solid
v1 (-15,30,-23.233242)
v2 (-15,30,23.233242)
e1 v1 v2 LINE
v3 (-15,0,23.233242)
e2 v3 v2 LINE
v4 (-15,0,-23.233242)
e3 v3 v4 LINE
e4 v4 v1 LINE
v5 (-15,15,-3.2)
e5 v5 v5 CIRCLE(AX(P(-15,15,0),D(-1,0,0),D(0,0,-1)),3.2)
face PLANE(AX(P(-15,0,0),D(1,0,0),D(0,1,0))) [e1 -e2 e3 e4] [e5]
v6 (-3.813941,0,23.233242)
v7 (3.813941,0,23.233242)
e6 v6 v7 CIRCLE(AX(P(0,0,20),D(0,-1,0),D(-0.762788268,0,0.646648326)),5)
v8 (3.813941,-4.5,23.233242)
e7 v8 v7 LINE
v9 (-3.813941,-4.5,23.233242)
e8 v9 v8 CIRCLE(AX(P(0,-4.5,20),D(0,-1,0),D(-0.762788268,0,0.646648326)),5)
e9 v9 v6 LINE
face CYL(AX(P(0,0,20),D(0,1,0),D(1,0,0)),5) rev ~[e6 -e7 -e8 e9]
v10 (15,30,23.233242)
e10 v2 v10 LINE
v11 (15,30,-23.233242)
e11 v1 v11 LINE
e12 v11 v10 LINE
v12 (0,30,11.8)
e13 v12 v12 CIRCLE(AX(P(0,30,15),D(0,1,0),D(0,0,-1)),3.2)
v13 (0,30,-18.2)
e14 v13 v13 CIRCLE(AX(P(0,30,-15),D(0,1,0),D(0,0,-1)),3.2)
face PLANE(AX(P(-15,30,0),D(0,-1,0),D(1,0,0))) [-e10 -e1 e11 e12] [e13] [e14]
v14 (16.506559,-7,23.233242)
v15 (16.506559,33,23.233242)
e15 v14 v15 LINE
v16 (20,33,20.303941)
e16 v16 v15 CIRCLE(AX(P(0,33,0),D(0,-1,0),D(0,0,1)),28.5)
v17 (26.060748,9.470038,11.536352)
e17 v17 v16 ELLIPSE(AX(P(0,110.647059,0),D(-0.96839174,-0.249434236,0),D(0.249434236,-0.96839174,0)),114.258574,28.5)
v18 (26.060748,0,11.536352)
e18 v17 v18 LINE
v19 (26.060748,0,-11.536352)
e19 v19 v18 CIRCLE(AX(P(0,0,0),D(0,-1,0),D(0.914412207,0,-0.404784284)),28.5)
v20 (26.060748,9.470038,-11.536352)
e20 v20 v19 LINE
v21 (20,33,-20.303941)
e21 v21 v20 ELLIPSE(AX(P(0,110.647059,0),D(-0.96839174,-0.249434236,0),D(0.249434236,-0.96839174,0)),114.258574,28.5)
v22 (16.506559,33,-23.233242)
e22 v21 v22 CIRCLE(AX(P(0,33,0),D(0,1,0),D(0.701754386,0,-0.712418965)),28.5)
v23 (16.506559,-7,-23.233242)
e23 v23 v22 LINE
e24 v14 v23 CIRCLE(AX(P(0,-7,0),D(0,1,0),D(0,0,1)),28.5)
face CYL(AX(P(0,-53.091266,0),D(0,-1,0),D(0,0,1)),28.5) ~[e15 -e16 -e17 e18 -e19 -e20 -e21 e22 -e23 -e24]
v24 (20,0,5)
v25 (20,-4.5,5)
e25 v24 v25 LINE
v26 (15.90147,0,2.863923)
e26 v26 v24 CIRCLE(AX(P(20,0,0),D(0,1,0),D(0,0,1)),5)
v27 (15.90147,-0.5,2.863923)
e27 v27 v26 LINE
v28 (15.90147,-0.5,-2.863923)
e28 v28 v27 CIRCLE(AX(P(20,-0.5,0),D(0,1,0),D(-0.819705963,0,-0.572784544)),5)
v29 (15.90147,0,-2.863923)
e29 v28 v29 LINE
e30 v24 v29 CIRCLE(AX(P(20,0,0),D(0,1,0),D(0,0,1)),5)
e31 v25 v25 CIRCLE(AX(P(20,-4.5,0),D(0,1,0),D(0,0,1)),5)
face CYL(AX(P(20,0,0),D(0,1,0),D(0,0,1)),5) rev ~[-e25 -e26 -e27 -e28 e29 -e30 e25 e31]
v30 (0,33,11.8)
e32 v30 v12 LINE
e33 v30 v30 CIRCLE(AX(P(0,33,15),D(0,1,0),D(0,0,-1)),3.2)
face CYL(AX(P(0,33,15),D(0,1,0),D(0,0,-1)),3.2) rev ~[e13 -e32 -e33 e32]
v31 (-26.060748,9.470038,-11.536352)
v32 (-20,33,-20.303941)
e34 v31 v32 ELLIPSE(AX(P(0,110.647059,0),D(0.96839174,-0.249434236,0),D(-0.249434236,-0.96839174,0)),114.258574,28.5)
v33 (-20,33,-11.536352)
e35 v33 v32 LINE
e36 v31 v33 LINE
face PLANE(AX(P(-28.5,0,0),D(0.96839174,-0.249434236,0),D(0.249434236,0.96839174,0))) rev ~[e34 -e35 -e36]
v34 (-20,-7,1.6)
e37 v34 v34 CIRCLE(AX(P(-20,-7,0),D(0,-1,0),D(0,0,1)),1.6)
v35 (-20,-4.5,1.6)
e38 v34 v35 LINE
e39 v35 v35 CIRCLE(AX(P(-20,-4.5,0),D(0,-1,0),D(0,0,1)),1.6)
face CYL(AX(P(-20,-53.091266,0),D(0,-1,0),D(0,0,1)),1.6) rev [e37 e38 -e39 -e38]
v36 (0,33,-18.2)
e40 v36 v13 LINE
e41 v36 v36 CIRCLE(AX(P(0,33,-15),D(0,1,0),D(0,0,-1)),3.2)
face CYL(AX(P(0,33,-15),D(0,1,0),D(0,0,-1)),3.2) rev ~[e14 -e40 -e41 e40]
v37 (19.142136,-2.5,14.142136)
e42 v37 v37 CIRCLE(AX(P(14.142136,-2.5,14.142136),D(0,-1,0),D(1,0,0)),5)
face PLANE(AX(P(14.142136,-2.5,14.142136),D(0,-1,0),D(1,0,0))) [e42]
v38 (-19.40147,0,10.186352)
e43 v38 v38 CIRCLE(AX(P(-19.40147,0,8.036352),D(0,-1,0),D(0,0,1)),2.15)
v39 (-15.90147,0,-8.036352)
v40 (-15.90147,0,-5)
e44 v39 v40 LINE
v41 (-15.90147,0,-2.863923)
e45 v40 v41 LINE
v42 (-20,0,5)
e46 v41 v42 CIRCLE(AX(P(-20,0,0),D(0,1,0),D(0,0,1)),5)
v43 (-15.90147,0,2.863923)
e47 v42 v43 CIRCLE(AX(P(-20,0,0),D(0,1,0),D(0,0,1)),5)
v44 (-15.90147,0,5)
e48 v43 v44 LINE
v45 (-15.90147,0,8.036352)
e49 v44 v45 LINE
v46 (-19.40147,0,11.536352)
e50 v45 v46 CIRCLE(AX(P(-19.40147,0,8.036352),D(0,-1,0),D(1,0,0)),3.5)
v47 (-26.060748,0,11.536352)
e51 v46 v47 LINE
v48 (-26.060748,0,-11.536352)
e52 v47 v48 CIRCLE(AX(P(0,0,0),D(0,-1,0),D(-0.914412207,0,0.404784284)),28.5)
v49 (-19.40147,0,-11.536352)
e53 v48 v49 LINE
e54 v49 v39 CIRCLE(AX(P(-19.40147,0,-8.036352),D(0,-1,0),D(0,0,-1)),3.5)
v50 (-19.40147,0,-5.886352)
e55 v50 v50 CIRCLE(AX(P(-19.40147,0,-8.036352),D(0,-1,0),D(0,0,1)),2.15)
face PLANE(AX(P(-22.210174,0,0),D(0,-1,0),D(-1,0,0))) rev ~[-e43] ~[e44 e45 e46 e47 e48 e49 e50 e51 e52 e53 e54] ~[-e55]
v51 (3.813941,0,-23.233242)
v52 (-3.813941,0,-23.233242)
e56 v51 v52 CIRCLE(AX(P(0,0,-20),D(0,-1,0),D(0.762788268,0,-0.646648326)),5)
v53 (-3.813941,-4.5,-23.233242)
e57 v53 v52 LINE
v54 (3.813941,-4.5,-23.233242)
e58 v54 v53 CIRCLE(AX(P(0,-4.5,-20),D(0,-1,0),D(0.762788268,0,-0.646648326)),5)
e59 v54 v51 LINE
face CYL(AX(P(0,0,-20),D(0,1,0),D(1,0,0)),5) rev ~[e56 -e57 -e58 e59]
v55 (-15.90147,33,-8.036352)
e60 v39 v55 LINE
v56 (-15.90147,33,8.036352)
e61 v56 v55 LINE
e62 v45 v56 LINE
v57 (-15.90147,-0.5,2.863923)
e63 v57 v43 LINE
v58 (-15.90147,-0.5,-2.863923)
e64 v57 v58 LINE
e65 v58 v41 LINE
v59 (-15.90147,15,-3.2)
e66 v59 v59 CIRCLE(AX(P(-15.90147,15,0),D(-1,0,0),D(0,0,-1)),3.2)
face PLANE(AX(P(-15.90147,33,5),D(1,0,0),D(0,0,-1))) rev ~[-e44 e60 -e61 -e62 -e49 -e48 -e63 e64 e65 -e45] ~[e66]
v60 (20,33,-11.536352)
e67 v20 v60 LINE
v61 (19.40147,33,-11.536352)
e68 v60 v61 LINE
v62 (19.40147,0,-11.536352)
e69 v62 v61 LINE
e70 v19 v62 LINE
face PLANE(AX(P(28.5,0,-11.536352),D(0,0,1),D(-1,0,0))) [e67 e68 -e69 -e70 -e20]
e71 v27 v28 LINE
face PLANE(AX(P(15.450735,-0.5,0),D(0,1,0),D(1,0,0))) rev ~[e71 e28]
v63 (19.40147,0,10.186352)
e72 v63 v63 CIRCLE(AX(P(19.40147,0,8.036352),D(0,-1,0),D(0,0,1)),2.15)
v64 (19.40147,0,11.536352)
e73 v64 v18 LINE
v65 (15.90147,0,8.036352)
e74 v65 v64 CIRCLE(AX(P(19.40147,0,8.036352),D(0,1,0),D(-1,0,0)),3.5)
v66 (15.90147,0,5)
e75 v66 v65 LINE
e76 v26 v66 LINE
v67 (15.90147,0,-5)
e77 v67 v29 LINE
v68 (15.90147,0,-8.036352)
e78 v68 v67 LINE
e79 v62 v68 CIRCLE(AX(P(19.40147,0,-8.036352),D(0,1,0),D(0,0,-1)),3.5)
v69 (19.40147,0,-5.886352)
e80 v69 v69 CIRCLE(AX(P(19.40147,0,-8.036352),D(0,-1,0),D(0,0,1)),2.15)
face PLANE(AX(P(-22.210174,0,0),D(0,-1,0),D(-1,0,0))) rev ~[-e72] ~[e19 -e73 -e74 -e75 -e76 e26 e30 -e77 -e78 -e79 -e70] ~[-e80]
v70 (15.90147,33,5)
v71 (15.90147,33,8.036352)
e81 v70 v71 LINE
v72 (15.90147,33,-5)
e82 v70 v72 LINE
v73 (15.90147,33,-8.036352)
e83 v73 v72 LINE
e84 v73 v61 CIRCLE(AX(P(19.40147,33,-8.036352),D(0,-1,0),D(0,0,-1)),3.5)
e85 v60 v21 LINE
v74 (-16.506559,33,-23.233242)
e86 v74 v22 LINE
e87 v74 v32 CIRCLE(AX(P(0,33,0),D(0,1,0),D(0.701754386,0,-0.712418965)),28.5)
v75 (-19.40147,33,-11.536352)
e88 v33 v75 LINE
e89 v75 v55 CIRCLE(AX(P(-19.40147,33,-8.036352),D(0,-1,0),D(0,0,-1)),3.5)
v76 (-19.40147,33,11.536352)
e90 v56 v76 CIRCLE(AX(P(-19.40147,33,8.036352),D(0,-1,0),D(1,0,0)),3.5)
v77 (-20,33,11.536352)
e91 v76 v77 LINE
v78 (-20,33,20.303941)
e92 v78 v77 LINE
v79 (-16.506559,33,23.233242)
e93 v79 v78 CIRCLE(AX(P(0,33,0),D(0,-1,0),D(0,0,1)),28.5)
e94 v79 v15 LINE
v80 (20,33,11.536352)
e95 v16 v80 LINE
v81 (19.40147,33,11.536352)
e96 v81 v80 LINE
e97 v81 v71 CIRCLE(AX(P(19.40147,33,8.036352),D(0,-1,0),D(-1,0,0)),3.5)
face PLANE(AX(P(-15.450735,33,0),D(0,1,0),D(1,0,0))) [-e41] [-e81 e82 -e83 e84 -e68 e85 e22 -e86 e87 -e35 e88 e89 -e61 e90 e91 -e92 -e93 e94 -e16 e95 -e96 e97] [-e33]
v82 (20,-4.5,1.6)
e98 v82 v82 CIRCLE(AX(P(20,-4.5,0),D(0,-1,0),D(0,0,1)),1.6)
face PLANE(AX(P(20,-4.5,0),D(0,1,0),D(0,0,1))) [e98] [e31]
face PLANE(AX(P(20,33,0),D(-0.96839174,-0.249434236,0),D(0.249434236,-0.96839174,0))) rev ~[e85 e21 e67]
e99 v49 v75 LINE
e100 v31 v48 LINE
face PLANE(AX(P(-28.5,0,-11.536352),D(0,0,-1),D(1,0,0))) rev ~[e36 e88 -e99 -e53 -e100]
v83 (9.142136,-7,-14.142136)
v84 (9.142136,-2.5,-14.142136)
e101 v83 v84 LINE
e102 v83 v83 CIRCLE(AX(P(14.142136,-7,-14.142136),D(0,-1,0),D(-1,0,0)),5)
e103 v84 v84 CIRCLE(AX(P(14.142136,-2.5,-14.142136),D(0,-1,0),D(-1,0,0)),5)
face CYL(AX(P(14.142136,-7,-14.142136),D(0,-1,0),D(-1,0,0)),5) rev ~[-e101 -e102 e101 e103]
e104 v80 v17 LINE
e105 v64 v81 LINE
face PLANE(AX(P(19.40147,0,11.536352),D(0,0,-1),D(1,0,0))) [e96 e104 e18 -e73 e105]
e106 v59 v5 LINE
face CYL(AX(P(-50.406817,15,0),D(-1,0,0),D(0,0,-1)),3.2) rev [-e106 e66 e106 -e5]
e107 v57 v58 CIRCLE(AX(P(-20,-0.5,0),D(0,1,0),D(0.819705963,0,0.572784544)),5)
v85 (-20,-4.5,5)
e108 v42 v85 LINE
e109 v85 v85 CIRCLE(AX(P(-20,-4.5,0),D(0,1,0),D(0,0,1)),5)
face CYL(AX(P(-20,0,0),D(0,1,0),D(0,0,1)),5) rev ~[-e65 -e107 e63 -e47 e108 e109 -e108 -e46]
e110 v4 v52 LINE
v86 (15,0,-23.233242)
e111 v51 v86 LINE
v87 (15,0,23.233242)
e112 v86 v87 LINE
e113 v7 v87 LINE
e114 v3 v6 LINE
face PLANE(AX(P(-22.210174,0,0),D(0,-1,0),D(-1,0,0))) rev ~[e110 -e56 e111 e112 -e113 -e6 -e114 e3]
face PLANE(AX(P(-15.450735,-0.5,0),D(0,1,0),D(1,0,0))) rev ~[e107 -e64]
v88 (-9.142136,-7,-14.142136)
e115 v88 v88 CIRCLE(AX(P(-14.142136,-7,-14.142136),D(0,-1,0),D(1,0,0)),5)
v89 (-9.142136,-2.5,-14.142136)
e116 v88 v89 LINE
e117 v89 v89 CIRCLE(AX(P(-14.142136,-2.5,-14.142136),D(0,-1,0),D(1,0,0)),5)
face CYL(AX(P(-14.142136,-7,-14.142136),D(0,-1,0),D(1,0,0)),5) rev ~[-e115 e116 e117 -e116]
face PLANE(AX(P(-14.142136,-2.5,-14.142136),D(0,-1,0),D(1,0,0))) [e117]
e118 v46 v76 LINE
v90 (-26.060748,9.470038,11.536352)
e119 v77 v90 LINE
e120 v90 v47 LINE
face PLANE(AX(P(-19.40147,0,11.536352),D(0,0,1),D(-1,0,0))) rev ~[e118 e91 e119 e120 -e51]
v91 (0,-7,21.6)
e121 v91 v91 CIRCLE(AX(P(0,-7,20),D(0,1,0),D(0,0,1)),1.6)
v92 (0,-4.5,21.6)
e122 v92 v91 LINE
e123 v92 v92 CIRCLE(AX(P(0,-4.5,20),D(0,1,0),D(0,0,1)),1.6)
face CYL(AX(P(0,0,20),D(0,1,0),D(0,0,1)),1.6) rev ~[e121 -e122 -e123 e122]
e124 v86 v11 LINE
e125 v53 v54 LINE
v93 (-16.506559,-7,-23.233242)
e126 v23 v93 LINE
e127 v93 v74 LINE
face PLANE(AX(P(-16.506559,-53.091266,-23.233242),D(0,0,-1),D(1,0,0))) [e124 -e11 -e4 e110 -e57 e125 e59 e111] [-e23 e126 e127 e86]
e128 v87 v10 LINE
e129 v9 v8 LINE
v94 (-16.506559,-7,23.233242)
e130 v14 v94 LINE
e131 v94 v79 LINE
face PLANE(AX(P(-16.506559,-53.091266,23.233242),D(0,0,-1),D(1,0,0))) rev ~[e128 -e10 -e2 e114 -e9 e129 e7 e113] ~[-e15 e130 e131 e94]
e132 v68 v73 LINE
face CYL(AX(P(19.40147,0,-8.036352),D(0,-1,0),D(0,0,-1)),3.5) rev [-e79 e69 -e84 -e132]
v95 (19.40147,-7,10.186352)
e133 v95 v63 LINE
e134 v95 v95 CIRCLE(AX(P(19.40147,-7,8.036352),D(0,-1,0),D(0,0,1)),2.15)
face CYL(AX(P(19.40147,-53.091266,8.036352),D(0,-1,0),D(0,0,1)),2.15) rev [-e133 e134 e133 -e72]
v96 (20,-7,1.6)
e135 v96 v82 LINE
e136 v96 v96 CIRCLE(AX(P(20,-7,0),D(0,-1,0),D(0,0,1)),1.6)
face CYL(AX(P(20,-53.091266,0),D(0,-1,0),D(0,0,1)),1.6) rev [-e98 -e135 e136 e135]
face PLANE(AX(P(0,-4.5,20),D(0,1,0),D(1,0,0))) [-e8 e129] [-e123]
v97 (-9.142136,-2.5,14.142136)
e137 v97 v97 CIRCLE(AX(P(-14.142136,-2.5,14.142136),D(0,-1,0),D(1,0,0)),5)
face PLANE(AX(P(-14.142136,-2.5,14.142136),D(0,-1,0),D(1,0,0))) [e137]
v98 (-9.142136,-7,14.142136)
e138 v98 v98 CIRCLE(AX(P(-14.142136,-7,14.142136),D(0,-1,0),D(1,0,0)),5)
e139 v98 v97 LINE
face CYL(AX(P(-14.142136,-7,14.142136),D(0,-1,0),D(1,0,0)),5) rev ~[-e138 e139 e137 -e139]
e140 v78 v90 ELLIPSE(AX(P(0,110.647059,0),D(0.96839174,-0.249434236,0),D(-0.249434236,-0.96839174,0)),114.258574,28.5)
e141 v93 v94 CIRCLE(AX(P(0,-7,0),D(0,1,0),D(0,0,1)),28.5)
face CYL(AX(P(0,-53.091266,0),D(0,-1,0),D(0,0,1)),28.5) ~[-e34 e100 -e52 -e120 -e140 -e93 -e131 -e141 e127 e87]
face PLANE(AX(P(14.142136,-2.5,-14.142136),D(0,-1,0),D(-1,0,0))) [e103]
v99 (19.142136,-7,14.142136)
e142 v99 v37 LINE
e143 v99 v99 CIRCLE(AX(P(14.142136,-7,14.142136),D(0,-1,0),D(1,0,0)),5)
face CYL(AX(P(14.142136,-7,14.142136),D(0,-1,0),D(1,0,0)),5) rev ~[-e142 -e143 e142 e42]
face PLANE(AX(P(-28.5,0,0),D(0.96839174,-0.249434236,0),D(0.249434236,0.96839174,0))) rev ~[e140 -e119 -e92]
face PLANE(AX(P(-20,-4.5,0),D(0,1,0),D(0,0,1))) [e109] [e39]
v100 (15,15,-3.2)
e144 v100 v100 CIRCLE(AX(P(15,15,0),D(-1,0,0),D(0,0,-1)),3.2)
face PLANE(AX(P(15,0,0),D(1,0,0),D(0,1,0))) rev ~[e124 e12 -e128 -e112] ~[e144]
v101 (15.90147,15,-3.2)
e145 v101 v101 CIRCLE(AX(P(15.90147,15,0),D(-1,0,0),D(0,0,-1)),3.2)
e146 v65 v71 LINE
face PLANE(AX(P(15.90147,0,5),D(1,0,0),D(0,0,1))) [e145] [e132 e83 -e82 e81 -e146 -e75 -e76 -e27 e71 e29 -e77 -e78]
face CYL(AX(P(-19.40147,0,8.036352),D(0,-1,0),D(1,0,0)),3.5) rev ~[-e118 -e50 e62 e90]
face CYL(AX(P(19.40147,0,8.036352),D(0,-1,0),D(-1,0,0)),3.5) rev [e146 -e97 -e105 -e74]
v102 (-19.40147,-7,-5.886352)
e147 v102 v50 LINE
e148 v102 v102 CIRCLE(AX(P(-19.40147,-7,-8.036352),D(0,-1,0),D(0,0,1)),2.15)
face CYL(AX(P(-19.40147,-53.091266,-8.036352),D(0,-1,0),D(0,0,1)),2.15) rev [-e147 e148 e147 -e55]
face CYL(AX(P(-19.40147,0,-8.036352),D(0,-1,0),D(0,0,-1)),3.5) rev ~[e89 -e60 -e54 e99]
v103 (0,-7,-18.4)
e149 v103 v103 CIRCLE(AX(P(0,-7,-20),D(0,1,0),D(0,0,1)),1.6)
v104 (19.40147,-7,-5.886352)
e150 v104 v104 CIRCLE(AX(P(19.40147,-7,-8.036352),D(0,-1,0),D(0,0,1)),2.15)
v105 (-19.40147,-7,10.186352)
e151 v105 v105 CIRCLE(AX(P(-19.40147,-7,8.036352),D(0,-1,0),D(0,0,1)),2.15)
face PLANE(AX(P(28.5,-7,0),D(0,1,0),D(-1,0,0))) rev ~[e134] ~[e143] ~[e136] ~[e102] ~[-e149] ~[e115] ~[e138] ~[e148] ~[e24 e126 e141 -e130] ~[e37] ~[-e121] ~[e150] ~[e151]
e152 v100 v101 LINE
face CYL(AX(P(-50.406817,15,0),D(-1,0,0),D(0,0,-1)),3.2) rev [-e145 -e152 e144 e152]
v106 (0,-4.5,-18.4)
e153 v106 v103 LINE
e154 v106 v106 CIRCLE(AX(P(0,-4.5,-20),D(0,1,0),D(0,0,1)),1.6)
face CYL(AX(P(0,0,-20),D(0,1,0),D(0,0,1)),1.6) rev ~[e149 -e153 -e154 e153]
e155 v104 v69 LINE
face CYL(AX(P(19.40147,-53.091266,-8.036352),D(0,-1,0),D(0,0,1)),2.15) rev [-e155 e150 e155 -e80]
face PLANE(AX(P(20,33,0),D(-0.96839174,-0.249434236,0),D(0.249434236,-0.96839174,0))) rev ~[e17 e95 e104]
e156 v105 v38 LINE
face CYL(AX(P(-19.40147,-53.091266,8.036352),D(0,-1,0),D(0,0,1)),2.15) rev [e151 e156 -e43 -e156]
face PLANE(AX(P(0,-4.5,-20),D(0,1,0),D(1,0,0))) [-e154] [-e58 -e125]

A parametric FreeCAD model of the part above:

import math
import FreeCAD as App
import Part
import Sketcher


def add_polygon(sketch, points):
    """Adds a closed chain of lines whose ends are joined by coincident constraints."""
    first, n = sketch.GeometryCount, len(points)
    for a, b in zip(points, points[1:] + points[:1]):
        sketch.addGeometry(Part.LineSegment(App.Vector(*a, 0), App.Vector(*b, 0)), False)
    for i in range(n):
        sketch.addConstraint(Sketcher.Constraint("Coincident", first + i, 2, first + (i + 1) % n, 1))

doc = App.newDocument("Part")
body = doc.addObject("PartDesign::Body", "Body")

# Sketch on XY plane
sketch1 = body.newObject("Sketcher::SketchObject", "Sketch")
sketch1.AttachmentSupport = (doc.getObject("XY_Plane"), [""])
sketch1.MapMode = "FlatFace"
add_polygon(sketch1, [(-20, 33), (-28, 0), (-28, -7), (28, -7), (28, 0), (20, 33)])  # lines 0-5
add_polygon(sketch1, [(-15, 0), (-15, 30), (15, 30), (15, 0)])  # lines 6-9
sketch1.addConstraint(Sketcher.Constraint("Vertical", 1))
sketch1.addConstraint(Sketcher.Constraint("Horizontal", 2))
sketch1.addConstraint(Sketcher.Constraint("Vertical", 3))
sketch1.addConstraint(Sketcher.Constraint("Horizontal", 5))
sketch1.addConstraint(Sketcher.Constraint("Vertical", 6))
sketch1.addConstraint(Sketcher.Constraint("Horizontal", 7))
sketch1.addConstraint(Sketcher.Constraint("Vertical", 8))
sketch1.addConstraint(Sketcher.Constraint("Horizontal", 9))
sketch1.addConstraint(Sketcher.Constraint("Symmetric", 0, 2, 3, 2, -1, 1))
sketch1.addConstraint(Sketcher.Constraint("Symmetric", 8, 2, 9, 2, -1, 1))
sketch1.addConstraint(Sketcher.Constraint("PointOnObject", 0, 2, -1))
sketch1.addConstraint(Sketcher.Constraint("Equal", 9, 6))
sketch1.addConstraint(Sketcher.Constraint("Equal", 0, 4))
sketch1.addConstraint(Sketcher.Constraint("DistanceX", 2, 1, 2, 2, 57.0))
sketch1.addConstraint(Sketcher.Constraint("DistanceX", 5, 2, 5, 1, 40.0))
sketch1.addConstraint(Sketcher.Constraint("DistanceX", 7, 1, 7, 2, 30.0))
sketch1.addConstraint(Sketcher.Constraint("DistanceY", 1, 2, 1, 1, 7.0))
sketch1.addConstraint(Sketcher.Constraint("DistanceY", -1, 1, 4, 2, 33.0))
pad1 = body.newObject("PartDesign::Pad", "Pad")
pad1.Profile = sketch1
pad1.Length = 57
pad1.Midplane = True

# Sketch on XZ plane
sketch2 = body.newObject("Sketcher::SketchObject", "Sketch001")
sketch2.AttachmentSupport = (doc.getObject("XZ_Plane"), [""])
sketch2.MapMode = "FlatFace"
sketch2.addGeometry(Part.Circle(App.Vector(-19.4, -8, 0), App.Vector(0, 0, 1), 2.1), False)
sketch2.addGeometry(Part.Circle(App.Vector(-20, 0, 0), App.Vector(0, 0, 1), 1.6), False)
sketch2.addGeometry(Part.Circle(App.Vector(19.4, -8, 0), App.Vector(0, 0, 1), 2.1), False)
sketch2.addGeometry(Part.Circle(App.Vector(20, 0, 0), App.Vector(0, 0, 1), 1.6), False)
sketch2.addGeometry(Part.Circle(App.Vector(19.4, 8, 0), App.Vector(0, 0, 1), 2.1), False)
sketch2.addGeometry(Part.Circle(App.Vector(-19.4, 8, 0), App.Vector(0, 0, 1), 2.1), False)
sketch2.addConstraint(Sketcher.Constraint("Equal", 0, 2))
sketch2.addConstraint(Sketcher.Constraint("Equal", 1, 3))
sketch2.addConstraint(Sketcher.Constraint("Equal", 2, 4))
sketch2.addConstraint(Sketcher.Constraint("Equal", 4, 5))
sketch2.addConstraint(Sketcher.Constraint("Symmetric", 1, 3, 3, 3, -1, 1))
sketch2.addConstraint(Sketcher.Constraint("Symmetric", 0, 3, 4, 3, -1, 1))
sketch2.addConstraint(Sketcher.Constraint("Symmetric", 2, 3, 5, 3, -1, 1))
sketch2.addConstraint(Sketcher.Constraint("Symmetric", 0, 3, 2, 3, -2))
sketch2.addConstraint(Sketcher.Constraint("PointOnObject", 1, 3, -1))
sketch2.addConstraint(Sketcher.Constraint("Diameter", 0, 4.3))
sketch2.addConstraint(Sketcher.Constraint("Diameter", 1, 3.2))
sketch2.addConstraint(Sketcher.Constraint("DistanceX", 1, 3, -1, 1, 20.0))
sketch2.addConstraint(Sketcher.Constraint("DistanceX", 0, 3, -1, 1, 19.40147))
sketch2.addConstraint(Sketcher.Constraint("DistanceY", 0, 3, -1, 1, 8.036352))
pocket1 = body.newObject("PartDesign::Pocket", "Pocket")
pocket1.Profile = sketch2
pocket1.Type = "ThroughAll"
pocket1.Midplane = True

# Sketch on XZ plane
sketch3 = body.newObject("Sketcher::SketchObject", "Sketch002")
sketch3.AttachmentSupport = (doc.getObject("XZ_Plane"), [""])
sketch3.MapMode = "FlatFace"
sketch3.addGeometry(Part.LineSegment(App.Vector(28.5, -11.5, 0), App.Vector(19.4, -11.5, 0)), False)
sketch3.addGeometry(Part.ArcOfCircle(Part.Circle(App.Vector(19.4, -8, 0), App.Vector(0, 0, 1), 3.5), math.radians(-180), math.radians(-90)), False)
sketch3.addGeometry(Part.LineSegment(App.Vector(15.9, -8, 0), App.Vector(15.9, -5, 0)), False)
sketch3.addGeometry(Part.LineSegment(App.Vector(15.9, -5, 0), App.Vector(15, -5, 0)), False)
sketch3.addGeometry(Part.LineSegment(App.Vector(15, -5, 0), App.Vector(15, 5, 0)), False)
sketch3.addGeometry(Part.LineSegment(App.Vector(15, 5, 0), App.Vector(15.9, 5, 0)), False)
sketch3.addGeometry(Part.LineSegment(App.Vector(15.9, 5, 0), App.Vector(15.9, 8, 0)), False)
sketch3.addGeometry(Part.ArcOfCircle(Part.Circle(App.Vector(19.4, 8, 0), App.Vector(0, 0, 1), 3.5), math.radians(90), math.radians(180)), False)
sketch3.addGeometry(Part.LineSegment(App.Vector(19.4, 11.5, 0), App.Vector(28.5, 11.5, 0)), False)
sketch3.addGeometry(Part.LineSegment(App.Vector(28.5, 11.5, 0), App.Vector(28.5, -11.5, 0)), False)
sketch3.addGeometry(Part.LineSegment(App.Vector(-15.9, 8, 0), App.Vector(-15.9, 5, 0)), False)
sketch3.addGeometry(Part.LineSegment(App.Vector(-15.9, 5, 0), App.Vector(-15, 5, 0)), False)
sketch3.addGeometry(Part.LineSegment(App.Vector(-15, 5, 0), App.Vector(-15, -5, 0)), False)
sketch3.addGeometry(Part.LineSegment(App.Vector(-15, -5, 0), App.Vector(-15.9, -5, 0)), False)
sketch3.addGeometry(Part.LineSegment(App.Vector(-15.9, -5, 0), App.Vector(-15.9, -8, 0)), False)
sketch3.addGeometry(Part.ArcOfCircle(Part.Circle(App.Vector(-19.4, -8, 0), App.Vector(0, 0, 1), 3.5), math.radians(-90), math.radians(0)), False)
sketch3.addGeometry(Part.LineSegment(App.Vector(-19.4, -11.5, 0), App.Vector(-28.5, -11.5, 0)), False)
sketch3.addGeometry(Part.LineSegment(App.Vector(-28.5, -11.5, 0), App.Vector(-28.5, 11.5, 0)), False)
sketch3.addGeometry(Part.LineSegment(App.Vector(-28.5, 11.5, 0), App.Vector(-19.4, 11.5, 0)), False)
sketch3.addGeometry(Part.ArcOfCircle(Part.Circle(App.Vector(-19.4, 8, 0), App.Vector(0, 0, 1), 3.5), math.radians(0), math.radians(90)), False)
sketch3.addConstraint(Sketcher.Constraint("Tangent", 0, 2, 1, 2))
sketch3.addConstraint(Sketcher.Constraint("Tangent", 1, 1, 2, 1))
sketch3.addConstraint(Sketcher.Constraint("Coincident", 2, 2, 3, 1))
sketch3.addConstraint(Sketcher.Constraint("Coincident", 3, 2, 4, 1))
sketch3.addConstraint(Sketcher.Constraint("Coincident", 4, 2, 5, 1))
sketch3.addConstraint(Sketcher.Constraint("Coincident", 5, 2, 6, 1))
sketch3.addConstraint(Sketcher.Constraint("Tangent", 6, 2, 7, 2))
sketch3.addConstraint(Sketcher.Constraint("Tangent", 7, 1, 8, 1))
sketch3.addConstraint(Sketcher.Constraint("Coincident", 8, 2, 9, 1))
sketch3.addConstraint(Sketcher.Constraint("Coincident", 9, 2, 0, 1))
sketch3.addConstraint(Sketcher.Constraint("Coincident", 10, 2, 11, 1))
sketch3.addConstraint(Sketcher.Constraint("Coincident", 11, 2, 12, 1))
sketch3.addConstraint(Sketcher.Constraint("Coincident", 12, 2, 13, 1))
sketch3.addConstraint(Sketcher.Constraint("Coincident", 13, 2, 14, 1))
sketch3.addConstraint(Sketcher.Constraint("Tangent", 14, 2, 15, 2))
sketch3.addConstraint(Sketcher.Constraint("Tangent", 15, 1, 16, 1))
sketch3.addConstraint(Sketcher.Constraint("Coincident", 16, 2, 17, 1))
sketch3.addConstraint(Sketcher.Constraint("Coincident", 17, 2, 18, 1))
sketch3.addConstraint(Sketcher.Constraint("Tangent", 18, 2, 19, 2))
sketch3.addConstraint(Sketcher.Constraint("Tangent", 19, 1, 10, 1))
sketch3.addConstraint(Sketcher.Constraint("Horizontal", 0))
sketch3.addConstraint(Sketcher.Constraint("Vertical", 2))
sketch3.addConstraint(Sketcher.Constraint("Horizontal", 3))
sketch3.addConstraint(Sketcher.Constraint("Vertical", 4))
sketch3.addConstraint(Sketcher.Constraint("Horizontal", 5))
sketch3.addConstraint(Sketcher.Constraint("Vertical", 6))
sketch3.addConstraint(Sketcher.Constraint("Horizontal", 8))
sketch3.addConstraint(Sketcher.Constraint("Vertical", 9))
sketch3.addConstraint(Sketcher.Constraint("Vertical", 10))
sketch3.addConstraint(Sketcher.Constraint("Horizontal", 11))
sketch3.addConstraint(Sketcher.Constraint("Vertical", 12))
sketch3.addConstraint(Sketcher.Constraint("Horizontal", 13))
sketch3.addConstraint(Sketcher.Constraint("Vertical", 14))
sketch3.addConstraint(Sketcher.Constraint("Horizontal", 16))
sketch3.addConstraint(Sketcher.Constraint("Vertical", 17))
sketch3.addConstraint(Sketcher.Constraint("Horizontal", 18))
sketch3.addConstraint(Sketcher.Constraint("Equal", 1, 7))
sketch3.addConstraint(Sketcher.Constraint("Equal", 7, 15))
sketch3.addConstraint(Sketcher.Constraint("Equal", 15, 19))
sketch3.addConstraint(Sketcher.Constraint("Symmetric", 7, 3, 15, 3, -1, 1))
sketch3.addConstraint(Sketcher.Constraint("Symmetric", 1, 3, 19, 3, -1, 1))
sketch3.addConstraint(Sketcher.Constraint("Symmetric", 3, 2, 11, 2, -1, 1))
sketch3.addConstraint(Sketcher.Constraint("Symmetric", 1, 3, 15, 3, -2))
sketch3.addConstraint(Sketcher.Constraint("Horizontal", 5, 2, 10, 2))
sketch3.addConstraint(Sketcher.Constraint("Horizontal", 3, 2, 12, 2))
sketch3.addConstraint(Sketcher.Constraint("Equal", 8, 16))
sketch3.addConstraint(Sketcher.Constraint("Radius", 1, 3.5))
sketch3.addConstraint(Sketcher.Constraint("DistanceY", 4, 1, 4, 2, 10.0))
sketch3.addConstraint(Sketcher.Constraint("DistanceX", -1, 1, 3, 2, 15.0))
sketch3.addConstraint(Sketcher.Constraint("DistanceX", -1, 1, 8, 2, 28.5))
sketch3.addConstraint(Sketcher.Constraint("DistanceX", 0, 2, 0, 1, 9.09853))
sketch3.addConstraint(Sketcher.Constraint("DistanceY", 2, 1, 2, 2, 3.036352))
pocket2 = body.newObject("PartDesign::Pocket", "Pocket001")
pocket2.Profile = sketch3
pocket2.Type = "ThroughAll"

# Sketch on XZ plane
sketch4 = body.newObject("Sketcher::SketchObject", "Sketch003")
sketch4.AttachmentSupport = (doc.getObject("XZ_Plane"), [""])
sketch4.MapMode = "FlatFace"
add_polygon(sketch4, [(-38, -38), (-38, 38), (38, 38), (38, -38)])  # lines 0-3
sketch4.addGeometry(Part.Circle(App.Vector(0, 0, 0), App.Vector(0, 0, 1), 28), False)  # 4
sketch4.addConstraint(Sketcher.Constraint("Vertical", 0))
sketch4.addConstraint(Sketcher.Constraint("Horizontal", 1))
sketch4.addConstraint(Sketcher.Constraint("Vertical", 2))
sketch4.addConstraint(Sketcher.Constraint("Horizontal", 3))
sketch4.addConstraint(Sketcher.Constraint("Coincident", 4, 3, -1, 1))
sketch4.addConstraint(Sketcher.Constraint("Symmetric", 0, 2, 2, 2, -1, 1))
sketch4.addConstraint(Sketcher.Constraint("Equal", 3, 0))
sketch4.addConstraint(Sketcher.Constraint("Diameter", 4, 57.0))
sketch4.addConstraint(Sketcher.Constraint("DistanceX", 1, 1, 1, 2, 76.998))
pocket3 = body.newObject("PartDesign::Pocket", "Pocket002")
pocket3.Profile = sketch4
pocket3.Type = "ThroughAll"
pocket3.Midplane = True

# Sketch on XZ plane
sketch5 = body.newObject("Sketcher::SketchObject", "Sketch004")
sketch5.AttachmentSupport = (doc.getObject("XZ_Plane"), [""])
sketch5.MapMode = "FlatFace"
sketch5.addGeometry(Part.LineSegment(App.Vector(17, 23, 0), App.Vector(-17, 23, 0)), False)
sketch5.addGeometry(Part.ArcOfCircle(Part.Circle(App.Vector(0, 0, 0), App.Vector(0, 0, 1), 28), math.radians(55), math.radians(125)), False)
sketch5.addGeometry(Part.LineSegment(App.Vector(-17, -23, 0), App.Vector(17, -23, 0)), False)
sketch5.addGeometry(Part.ArcOfCircle(Part.Circle(App.Vector(0, 0, 0), App.Vector(0, 0, 1), 28), math.radians(-125), math.radians(-55)), False)
sketch5.addConstraint(Sketcher.Constraint("Coincident", 0, 1, 1, 1))
sketch5.addConstraint(Sketcher.Constraint("Coincident", 1, 2, 0, 2))
sketch5.addConstraint(Sketcher.Constraint("Coincident", 2, 1, 3, 1))
sketch5.addConstraint(Sketcher.Constraint("Coincident", 3, 2, 2, 2))
sketch5.addConstraint(Sketcher.Constraint("Horizontal", 0))
sketch5.addConstraint(Sketcher.Constraint("Horizontal", 2))
sketch5.addConstraint(Sketcher.Constraint("Coincident", 1, 3, -1, 1))
sketch5.addConstraint(Sketcher.Constraint("Coincident", 3, 3, -1, 1))
sketch5.addConstraint(Sketcher.Constraint("Equal", 1, 3))
sketch5.addConstraint(Sketcher.Constraint("Vertical", 1, 2, 2, 1))
sketch5.addConstraint(Sketcher.Constraint("Radius", 1, 28.5))
sketch5.addConstraint(Sketcher.Constraint("DistanceX", 0, 2, 0, 1, 33.013118))
pocket4 = body.newObject("PartDesign::Pocket", "Pocket003")
pocket4.Profile = sketch5
pocket4.Type = "ThroughAll"
pocket4.Midplane = True

# Sketch on XZ plane
sketch6 = body.newObject("Sketcher::SketchObject", "Sketch005")
sketch6.AttachmentSupport = (doc.getObject("XZ_Plane"), [""])
sketch6.MapMode = "FlatFace"
sketch6.AttachmentOffset = App.Placement(App.Vector(0, 0, 7), App.Rotation())
sketch6.addGeometry(Part.Circle(App.Vector(-14, 14, 0), App.Vector(0, 0, 1), 5), False)
sketch6.addGeometry(Part.Circle(App.Vector(14, -14, 0), App.Vector(0, 0, 1), 5), False)
sketch6.addGeometry(Part.Circle(App.Vector(-14, -14, 0), App.Vector(0, 0, 1), 5), False)
sketch6.addGeometry(Part.Circle(App.Vector(14, 14, 0), App.Vector(0, 0, 1), 5), False)
sketch6.addConstraint(Sketcher.Constraint("Equal", 0, 1))
sketch6.addConstraint(Sketcher.Constraint("Equal", 1, 2))
sketch6.addConstraint(Sketcher.Constraint("Equal", 2, 3))
sketch6.addConstraint(Sketcher.Constraint("Symmetric", 0, 3, 1, 3, -1, 1))
sketch6.addConstraint(Sketcher.Constraint("Symmetric", 2, 3, 3, 3, -1, 1))
sketch6.addConstraint(Sketcher.Constraint("Symmetric", 1, 3, 2, 3, -2))
sketch6.addConstraint(Sketcher.Constraint("Diameter", 0, 10.0))
sketch6.addConstraint(Sketcher.Constraint("DistanceX", 0, 3, 1, 3, 28.284271))
sketch6.addConstraint(Sketcher.Constraint("DistanceY", 1, 3, 0, 3, 28.284271))
pocket5 = body.newObject("PartDesign::Pocket", "Pocket004")
pocket5.Profile = sketch6
pocket5.Length = 4.5

# Sketch on XZ plane
sketch7 = body.newObject("Sketcher::SketchObject", "Sketch006")
sketch7.AttachmentSupport = (doc.getObject("XZ_Plane"), [""])
sketch7.MapMode = "FlatFace"
sketch7.addGeometry(Part.Circle(App.Vector(0, -20, 0), App.Vector(0, 0, 1), 1.6), False)
sketch7.addGeometry(Part.Circle(App.Vector(0, 20, 0), App.Vector(0, 0, 1), 1.6), False)
sketch7.addConstraint(Sketcher.Constraint("Equal", 0, 1))
sketch7.addConstraint(Sketcher.Constraint("Symmetric", 0, 3, 1, 3, -1, 1))
sketch7.addConstraint(Sketcher.Constraint("PointOnObject", 0, 3, -2))
sketch7.addConstraint(Sketcher.Constraint("Diameter", 0, 3.2))
sketch7.addConstraint(Sketcher.Constraint("DistanceY", 0, 3, -1, 1, 20.0))
pocket6 = body.newObject("PartDesign::Pocket", "Pocket005")
pocket6.Profile = sketch7
pocket6.Type = "ThroughAll"
pocket6.Reversed = True

# Sketch on XZ plane
sketch8 = body.newObject("Sketcher::SketchObject", "Sketch007")
sketch8.AttachmentSupport = (doc.getObject("XZ_Plane"), [""])
sketch8.MapMode = "FlatFace"
sketch8.addGeometry(Part.Circle(App.Vector(0, 20, 0), App.Vector(0, 0, 1), 5), False)
sketch8.addGeometry(Part.Circle(App.Vector(0, -20, 0), App.Vector(0, 0, 1), 5), False)
sketch8.addGeometry(Part.Circle(App.Vector(-20, 0, 0), App.Vector(0, 0, 1), 5), False)
sketch8.addGeometry(Part.Circle(App.Vector(20, 0, 0), App.Vector(0, 0, 1), 5), False)
sketch8.addConstraint(Sketcher.Constraint("Equal", 0, 1))
sketch8.addConstraint(Sketcher.Constraint("Equal", 1, 2))
sketch8.addConstraint(Sketcher.Constraint("Equal", 2, 3))
sketch8.addConstraint(Sketcher.Constraint("Symmetric", 0, 3, 1, 3, -1, 1))
sketch8.addConstraint(Sketcher.Constraint("Symmetric", 2, 3, 3, 3, -1, 1))
sketch8.addConstraint(Sketcher.Constraint("PointOnObject", 0, 3, -2))
sketch8.addConstraint(Sketcher.Constraint("PointOnObject", 2, 3, -1))
sketch8.addConstraint(Sketcher.Constraint("Diameter", 0, 10.0))
sketch8.addConstraint(Sketcher.Constraint("DistanceY", -1, 1, 0, 3, 20.0))
sketch8.addConstraint(Sketcher.Constraint("DistanceX", 2, 3, -1, 1, 20.0))
pocket7 = body.newObject("PartDesign::Pocket", "Pocket006")
pocket7.Profile = sketch8
pocket7.Length = 4.5
pocket7.Reversed = True

# Sketch on XZ plane
sketch9 = body.newObject("Sketcher::SketchObject", "Sketch008")
sketch9.AttachmentSupport = (doc.getObject("XZ_Plane"), [""])
sketch9.MapMode = "FlatFace"
sketch9.AttachmentOffset = App.Placement(App.Vector(0, 0, -33), App.Rotation())
add_polygon(sketch9, [(-15.9, -5), (-15.9, 5), (-15, 5), (-15, -5)])  # lines 0-3
add_polygon(sketch9, [(15, -5), (15, 5), (15.9, 5), (15.9, -5)])  # lines 4-7
sketch9.addConstraint(Sketcher.Constraint("Vertical", 0))
sketch9.addConstraint(Sketcher.Constraint("Horizontal", 1))
sketch9.addConstraint(Sketcher.Constraint("Vertical", 2))
sketch9.addConstraint(Sketcher.Constraint("Horizontal", 3))
sketch9.addConstraint(Sketcher.Constraint("Vertical", 4))
sketch9.addConstraint(Sketcher.Constraint("Horizontal", 5))
sketch9.addConstraint(Sketcher.Constraint("Vertical", 6))
sketch9.addConstraint(Sketcher.Constraint("Horizontal", 7))
sketch9.addConstraint(Sketcher.Constraint("Symmetric", 2, 2, 4, 2, -1, 1))
sketch9.addConstraint(Sketcher.Constraint("Symmetric", 0, 2, 6, 2, -1, 1))
sketch9.addConstraint(Sketcher.Constraint("Horizontal", 1, 2, 4, 2))
sketch9.addConstraint(Sketcher.Constraint("DistanceY", 0, 1, 0, 2, 10.0))
sketch9.addConstraint(Sketcher.Constraint("DistanceX", 1, 2, -1, 1, 15.0))
sketch9.addConstraint(Sketcher.Constraint("DistanceX", 1, 1, 1, 2, 0.90147))
pad2 = body.newObject("PartDesign::Pad", "Pad001")
pad2.Profile = sketch9
pad2.Length = 33.5

# Sketch on YZ plane
sketch10 = body.newObject("Sketcher::SketchObject", "Sketch009")
sketch10.AttachmentSupport = (doc.getObject("YZ_Plane"), [""])
sketch10.MapMode = "FlatFace"
sketch10.addGeometry(Part.Circle(App.Vector(15, 0, 0), App.Vector(0, 0, 1), 3.2), False)
sketch10.addConstraint(Sketcher.Constraint("PointOnObject", 0, 3, -1))
sketch10.addConstraint(Sketcher.Constraint("Diameter", 0, 6.4))
sketch10.addConstraint(Sketcher.Constraint("DistanceX", -1, 1, 0, 3, 15.0))
pocket8 = body.newObject("PartDesign::Pocket", "Pocket007")
pocket8.Profile = sketch10
pocket8.Type = "ThroughAll"
pocket8.Midplane = True

# Sketch on XZ plane
sketch11 = body.newObject("Sketcher::SketchObject", "Sketch010")
sketch11.AttachmentSupport = (doc.getObject("XZ_Plane"), [""])
sketch11.MapMode = "FlatFace"
sketch11.AttachmentOffset = App.Placement(App.Vector(0, 0, -33), App.Rotation())
sketch11.addGeometry(Part.Circle(App.Vector(0, -15, 0), App.Vector(0, 0, 1), 3.2), False)
sketch11.addConstraint(Sketcher.Constraint("PointOnObject", 0, 3, -2))
sketch11.addConstraint(Sketcher.Constraint("Diameter", 0, 6.4))
sketch11.addConstraint(Sketcher.Constraint("DistanceY", 0, 3, -1, 1, 15.0))
pocket9 = body.newObject("PartDesign::Pocket", "Pocket008")
pocket9.Profile = sketch11
pocket9.Type = "UpToFirst"
pocket9.Reversed = True

# Sketch on XZ plane
sketch12 = body.newObject("Sketcher::SketchObject", "Sketch011")
sketch12.AttachmentSupport = (doc.getObject("XZ_Plane"), [""])
sketch12.MapMode = "FlatFace"
sketch12.AttachmentOffset = App.Placement(App.Vector(0, 0, -33), App.Rotation())
sketch12.addGeometry(Part.Circle(App.Vector(0, 15, 0), App.Vector(0, 0, 1), 3.2), False)
sketch12.addConstraint(Sketcher.Constraint("PointOnObject", 0, 3, -2))
sketch12.addConstraint(Sketcher.Constraint("Diameter", 0, 6.4))
sketch12.addConstraint(Sketcher.Constraint("DistanceY", -1, 1, 0, 3, 15.0))
pocket10 = body.newObject("PartDesign::Pocket", "Pocket009")
pocket10.Profile = sketch12
pocket10.Type = "UpToFirst"
pocket10.Reversed = True

# Sketch on XZ plane
sketch13 = body.newObject("Sketcher::SketchObject", "Sketch012")
sketch13.AttachmentSupport = (doc.getObject("XZ_Plane"), [""])
sketch13.MapMode = "FlatFace"
sketch13.AttachmentOffset = App.Placement(App.Vector(0, 0, -33), App.Rotation())
sketch13.addGeometry(Part.Circle(App.Vector(0, -15, 0), App.Vector(0, 0, 1), 3.2), False)
sketch13.addGeometry(Part.Circle(App.Vector(0, 15, 0), App.Vector(0, 0, 1), 3.2), False)
sketch13.addConstraint(Sketcher.Constraint("Equal", 0, 1))
sketch13.addConstraint(Sketcher.Constraint("Symmetric", 0, 3, 1, 3, -1, 1))
sketch13.addConstraint(Sketcher.Constraint("PointOnObject", 0, 3, -2))
sketch13.addConstraint(Sketcher.Constraint("Diameter", 0, 6.4))
sketch13.addConstraint(Sketcher.Constraint("DistanceY", 0, 3, -1, 1, 15.0))
pocket11 = body.newObject("PartDesign::Pocket", "Pocket010")
pocket11.Profile = sketch13
pocket11.Length = 55.332619

doc.recompute()
